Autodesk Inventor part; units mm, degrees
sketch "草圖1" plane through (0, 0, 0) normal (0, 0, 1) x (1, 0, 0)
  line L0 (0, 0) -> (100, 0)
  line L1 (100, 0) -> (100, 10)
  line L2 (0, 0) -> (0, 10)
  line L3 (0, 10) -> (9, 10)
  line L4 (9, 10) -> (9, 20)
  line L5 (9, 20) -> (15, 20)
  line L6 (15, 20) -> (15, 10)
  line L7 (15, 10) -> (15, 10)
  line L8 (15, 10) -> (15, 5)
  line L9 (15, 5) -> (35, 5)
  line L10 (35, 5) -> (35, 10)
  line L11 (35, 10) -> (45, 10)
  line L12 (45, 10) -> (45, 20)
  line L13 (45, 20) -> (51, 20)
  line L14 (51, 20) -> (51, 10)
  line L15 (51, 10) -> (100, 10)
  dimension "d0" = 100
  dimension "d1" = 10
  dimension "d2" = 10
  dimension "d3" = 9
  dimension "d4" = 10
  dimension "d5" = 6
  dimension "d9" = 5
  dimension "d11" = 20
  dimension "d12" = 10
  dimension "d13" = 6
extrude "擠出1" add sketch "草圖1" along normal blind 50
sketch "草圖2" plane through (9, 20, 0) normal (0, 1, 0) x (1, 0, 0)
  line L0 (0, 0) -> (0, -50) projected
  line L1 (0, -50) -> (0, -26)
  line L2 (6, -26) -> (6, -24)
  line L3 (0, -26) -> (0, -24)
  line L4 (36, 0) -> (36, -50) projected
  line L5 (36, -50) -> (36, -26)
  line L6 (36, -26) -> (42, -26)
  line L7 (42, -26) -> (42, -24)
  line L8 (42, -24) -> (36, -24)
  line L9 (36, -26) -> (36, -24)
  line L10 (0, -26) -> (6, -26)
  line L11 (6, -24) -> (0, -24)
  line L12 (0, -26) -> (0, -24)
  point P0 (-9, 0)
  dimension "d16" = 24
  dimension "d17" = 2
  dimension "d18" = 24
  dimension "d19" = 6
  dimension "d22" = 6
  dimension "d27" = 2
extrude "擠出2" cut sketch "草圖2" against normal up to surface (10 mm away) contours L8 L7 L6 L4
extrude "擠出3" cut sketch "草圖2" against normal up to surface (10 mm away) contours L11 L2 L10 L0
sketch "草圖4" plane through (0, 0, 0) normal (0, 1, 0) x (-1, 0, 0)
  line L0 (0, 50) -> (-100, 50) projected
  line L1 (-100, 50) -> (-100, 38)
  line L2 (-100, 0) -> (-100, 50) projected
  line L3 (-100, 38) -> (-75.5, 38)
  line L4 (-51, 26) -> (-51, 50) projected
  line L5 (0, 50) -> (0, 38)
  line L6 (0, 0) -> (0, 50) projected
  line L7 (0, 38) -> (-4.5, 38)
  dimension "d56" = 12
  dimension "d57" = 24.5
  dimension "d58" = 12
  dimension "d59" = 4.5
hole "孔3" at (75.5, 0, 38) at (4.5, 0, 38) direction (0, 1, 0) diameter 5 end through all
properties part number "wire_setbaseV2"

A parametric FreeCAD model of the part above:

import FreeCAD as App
import Part
import Sketcher
from FreeCAD import Vector
Q = App.Units.Quantity


def add_polygon(sketch, points):
    """Adds a closed chain of lines whose ends are joined by coincident constraints."""
    first, n = sketch.GeometryCount, len(points)
    for a, b in zip(points, points[1:] + points[:1]):
        sketch.addGeometry(Part.LineSegment(App.Vector(*a, 0), App.Vector(*b, 0)), False)
    for i in range(n):
        sketch.addConstraint(Sketcher.Constraint("Coincident", first + i, 2, first + (i + 1) % n, 1))

doc = App.newDocument("Part")
body = doc.addObject("PartDesign::Body", "Body")

# Sketch on XY plane
sketch1 = doc.addObject("Sketcher::SketchObject", "Sketch")
body.addObject(sketch1)
sketch1.AttachmentSupport = (doc.XY_Plane, [""])
sketch1.MapMode = "FlatFace"
add_polygon(sketch1, [(0, 10), (0, 0), (100, 0), (100, 10), (51, 10), (51, 20), (45, 20), (45, 10), (35, 10), (35, 5), (15, 5), (15, 20), (9, 20), (9, 10)])  # lines 0-13
sketch1.addConstraint([
    Sketcher.Constraint("Vertical", 0),
    Sketcher.Constraint("Horizontal", 1),
    Sketcher.Constraint("Vertical", 2),
    Sketcher.Constraint("Horizontal", 3),
    Sketcher.Constraint("Vertical", 4),
    Sketcher.Constraint("Horizontal", 5),
    Sketcher.Constraint("Vertical", 6),
    Sketcher.Constraint("Horizontal", 7),
    Sketcher.Constraint("Vertical", 8),
    Sketcher.Constraint("Horizontal", 9),
    Sketcher.Constraint("Vertical", 10),
    Sketcher.Constraint("Horizontal", 11),
    Sketcher.Constraint("Vertical", 12),
    Sketcher.Constraint("Horizontal", 13),
    Sketcher.Constraint("Coincident", 0, 2, -1, 1),
    Sketcher.Constraint("Horizontal", 3, 2, 6, 2),
    Sketcher.Constraint("Horizontal", 5, 2, 10, 2),
    Sketcher.Constraint("Horizontal", 7, 2, 12, 2),
    Sketcher.Constraint("Equal", 5, 11),
    Sketcher.Constraint("Equal", 7, 0),
    Sketcher.Constraint("Equal", 2, 4),
    Sketcher.Constraint("DistanceX", 1, 1, 1, 2, Q("100 mm")),
    Sketcher.Constraint("DistanceX", 5, 2, 5, 1, Q("6 mm")),
    Sketcher.Constraint("DistanceX", 7, 2, 7, 1, Q("10 mm")),
    Sketcher.Constraint("DistanceX", 9, 2, 9, 1, Q("20 mm")),
    Sketcher.Constraint("DistanceX", 13, 2, 13, 1, Q("9 mm")),
    Sketcher.Constraint("DistanceY", 8, 2, 8, 1, Q("5 mm")),
])
pad1 = doc.addObject("PartDesign::Pad", "Pad")
body.addObject(pad1)
pad1.Profile = sketch1
pad1.Length = 50

# Sketch on XZ plane
sketch2 = doc.addObject("Sketcher::SketchObject", "Sketch001")
body.addObject(sketch2)
sketch2.AttachmentSupport = (doc.XZ_Plane, [""])
sketch2.MapMode = "FlatFace"
sketch2.AttachmentOffset = App.Placement(Vector(0, 0, -20), App.Rotation())
add_polygon(sketch2, [(51, 24), (45, 24), (45, 26), (51, 26)])  # lines 0-3
sketch2.addConstraint([
    Sketcher.Constraint("Horizontal", 0),
    Sketcher.Constraint("Vertical", 1),
    Sketcher.Constraint("Horizontal", 2),
    Sketcher.Constraint("Vertical", 3),
    Sketcher.Constraint("DistanceX", 0, 2, 0, 1, Q("6 mm")),
    Sketcher.Constraint("DistanceY", 1, 1, 1, 2, Q("2 mm")),
    Sketcher.Constraint("DistanceY", -1, 1, 0, 2, Q("24 mm")),
    Sketcher.Constraint("DistanceX", -1, 1, 0, 2, Q("45 mm")),
])
pocket1 = doc.addObject("PartDesign::Pocket", "Pocket")
body.addObject(pocket1)
pocket1.Profile = sketch2
pocket1.Length = 10
pocket1.Reversed = True

# Sketch on XZ plane
sketch3 = doc.addObject("Sketcher::SketchObject", "Sketch002")
body.addObject(sketch3)
sketch3.AttachmentSupport = (doc.XZ_Plane, [""])
sketch3.MapMode = "FlatFace"
sketch3.AttachmentOffset = App.Placement(Vector(0, 0, -20), App.Rotation())
add_polygon(sketch3, [(15, 24), (9, 24), (9, 26), (15, 26)])  # lines 0-3
sketch3.addConstraint([
    Sketcher.Constraint("Horizontal", 0),
    Sketcher.Constraint("Vertical", 1),
    Sketcher.Constraint("Horizontal", 2),
    Sketcher.Constraint("Vertical", 3),
    Sketcher.Constraint("DistanceX", 0, 2, 0, 1, Q("6 mm")),
    Sketcher.Constraint("DistanceY", 1, 1, 1, 2, Q("2 mm")),
    Sketcher.Constraint("DistanceY", -1, 1, 0, 2, Q("24 mm")),
    Sketcher.Constraint("DistanceX", -1, 1, 0, 2, Q("9 mm")),
])
pocket2 = doc.addObject("PartDesign::Pocket", "Pocket001")
body.addObject(pocket2)
pocket2.Profile = sketch3
pocket2.Length = 10
pocket2.Reversed = True

# Sketch on XZ plane
sketch4 = doc.addObject("Sketcher::SketchObject", "Sketch003")
body.addObject(sketch4)
sketch4.AttachmentSupport = (doc.XZ_Plane, [""])
sketch4.MapMode = "FlatFace"
sketch4.addGeometry([
    Part.Circle(Vector(75.5, 38, 0), Vector(0, 0, 1), 2.5),
    Part.Circle(Vector(4.5, 38, 0), Vector(0, 0, 1), 2.5),
], False)
sketch4.addConstraint([
    Sketcher.Constraint("Equal", 0, 1),
    Sketcher.Constraint("Horizontal", 0, 3, 1, 3),
    Sketcher.Constraint("Diameter", 0, Q("5 mm")),
    Sketcher.Constraint("DistanceY", -1, 1, 0, 3, Q("38 mm")),
    Sketcher.Constraint("DistanceX", 1, 3, 0, 3, Q("71 mm")),
    Sketcher.Constraint("DistanceX", -1, 1, 0, 3, Q("75.5 mm")),
])
doc.recompute()
hole = doc.addObject("PartDesign::Hole", "Hole")
body.addObject(hole)
hole.Profile = sketch4
hole.ThreadType = "None"
hole.Diameter = 5
hole.DepthType = "ThroughAll"

doc.recompute()
